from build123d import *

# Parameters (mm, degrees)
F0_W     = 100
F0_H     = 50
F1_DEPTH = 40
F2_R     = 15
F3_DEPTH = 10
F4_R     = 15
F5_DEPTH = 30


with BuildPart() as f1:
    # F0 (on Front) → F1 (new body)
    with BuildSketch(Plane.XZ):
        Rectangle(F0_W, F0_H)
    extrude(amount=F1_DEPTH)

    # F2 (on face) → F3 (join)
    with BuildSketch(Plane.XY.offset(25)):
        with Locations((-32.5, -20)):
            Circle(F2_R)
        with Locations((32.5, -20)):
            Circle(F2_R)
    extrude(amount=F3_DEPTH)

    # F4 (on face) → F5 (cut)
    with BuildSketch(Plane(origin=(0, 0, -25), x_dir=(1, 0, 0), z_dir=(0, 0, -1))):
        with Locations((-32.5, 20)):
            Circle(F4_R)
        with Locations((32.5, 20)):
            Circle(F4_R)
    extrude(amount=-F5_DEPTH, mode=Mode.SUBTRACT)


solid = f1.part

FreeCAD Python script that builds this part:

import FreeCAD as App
import Part
import Sketcher

V = App.Vector


def add_polygon(sketch, points):
    """Adds a closed chain of lines whose ends are joined by coincident constraints."""
    first, n = sketch.GeometryCount, len(points)
    for a, b in zip(points, points[1:] + points[:1]):
        sketch.addGeometry(Part.LineSegment(App.Vector(*a, 0), App.Vector(*b, 0)), False)
    for i in range(n):
        sketch.addConstraint(Sketcher.Constraint("Coincident", first + i, 2, first + (i + 1) % n, 1))

doc = App.newDocument("Part")
body = doc.addObject("PartDesign::Body", "Body")

sketch1 = body.newObject("Sketcher::SketchObject", "Sketch")
sketch1.AttachmentSupport = (doc.getObject("XZ_Plane"), [""])
sketch1.MapMode = "FlatFace"
add_polygon(sketch1, [(-50, 25), (-50, -25), (50, -25), (50, 25)])
sketch1.addConstraint(Sketcher.Constraint("Vertical", 0))
sketch1.addConstraint(Sketcher.Constraint("Horizontal", 1))
sketch1.addConstraint(Sketcher.Constraint("Vertical", 2))
sketch1.addConstraint(Sketcher.Constraint("Horizontal", 3))
sketch1.addConstraint(Sketcher.Constraint("Symmetric", 0, 2, 2, 2, -1, 1))
sketch1.addConstraint(Sketcher.Constraint("DistanceX", 1, 1, 1, 2, 100.0))
sketch1.addConstraint(Sketcher.Constraint("DistanceY", 0, 2, 0, 1, 50.0))
pad1 = body.newObject("PartDesign::Pad", "Pad")
pad1.Profile = sketch1
pad1.Length = 40

sketch2 = body.newObject("Sketcher::SketchObject", "Sketch001")
sketch2.AttachmentSupport = (doc.getObject("XY_Plane"), [""])
sketch2.MapMode = "FlatFace"
sketch2.AttachmentOffset = App.Placement(V(0, 0, 25), App.Rotation())
sketch2.addGeometry(Part.Circle(V(-32, -20, 0), V(0, 0, 1), 15), False)
sketch2.addGeometry(Part.Circle(V(32, -20, 0), V(0, 0, 1), 15), False)
sketch2.addConstraint(Sketcher.Constraint("Equal", 0, 1))
sketch2.addConstraint(Sketcher.Constraint("Symmetric", 0, 3, 1, 3, -2))
sketch2.addConstraint(Sketcher.Constraint("Diameter", 0, 30.0))
sketch2.addConstraint(Sketcher.Constraint("DistanceY", 0, 3, -1, 1, 20.0))
sketch2.addConstraint(Sketcher.Constraint("DistanceX", 0, 3, 1, 3, 65.0))
pad2 = body.newObject("PartDesign::Pad", "Pad001")
pad2.Profile = sketch2
pad2.Length = 10

sketch3 = body.newObject("Sketcher::SketchObject", "Sketch002")
sketch3.AttachmentSupport = (doc.getObject("XY_Plane"), [""])
sketch3.MapMode = "FlatFace"
sketch3.AttachmentOffset = App.Placement(V(0, 0, -25), App.Rotation())
sketch3.addGeometry(Part.Circle(V(-32, -20, 0), V(0, 0, 1), 15), False)
sketch3.addGeometry(Part.Circle(V(32, -20, 0), V(0, 0, 1), 15), False)
sketch3.addConstraint(Sketcher.Constraint("Equal", 0, 1))
sketch3.addConstraint(Sketcher.Constraint("Symmetric", 0, 3, 1, 3, -2))
sketch3.addConstraint(Sketcher.Constraint("Diameter", 0, 30.0))
sketch3.addConstraint(Sketcher.Constraint("DistanceY", 0, 3, -1, 1, 20.0))
sketch3.addConstraint(Sketcher.Constraint("DistanceX", 0, 3, 1, 3, 65.0))
pocket1 = body.newObject("PartDesign::Pocket", "Pocket")
pocket1.Profile = sketch3
pocket1.Length = 30
pocket1.Reversed = True

doc.recompute()
